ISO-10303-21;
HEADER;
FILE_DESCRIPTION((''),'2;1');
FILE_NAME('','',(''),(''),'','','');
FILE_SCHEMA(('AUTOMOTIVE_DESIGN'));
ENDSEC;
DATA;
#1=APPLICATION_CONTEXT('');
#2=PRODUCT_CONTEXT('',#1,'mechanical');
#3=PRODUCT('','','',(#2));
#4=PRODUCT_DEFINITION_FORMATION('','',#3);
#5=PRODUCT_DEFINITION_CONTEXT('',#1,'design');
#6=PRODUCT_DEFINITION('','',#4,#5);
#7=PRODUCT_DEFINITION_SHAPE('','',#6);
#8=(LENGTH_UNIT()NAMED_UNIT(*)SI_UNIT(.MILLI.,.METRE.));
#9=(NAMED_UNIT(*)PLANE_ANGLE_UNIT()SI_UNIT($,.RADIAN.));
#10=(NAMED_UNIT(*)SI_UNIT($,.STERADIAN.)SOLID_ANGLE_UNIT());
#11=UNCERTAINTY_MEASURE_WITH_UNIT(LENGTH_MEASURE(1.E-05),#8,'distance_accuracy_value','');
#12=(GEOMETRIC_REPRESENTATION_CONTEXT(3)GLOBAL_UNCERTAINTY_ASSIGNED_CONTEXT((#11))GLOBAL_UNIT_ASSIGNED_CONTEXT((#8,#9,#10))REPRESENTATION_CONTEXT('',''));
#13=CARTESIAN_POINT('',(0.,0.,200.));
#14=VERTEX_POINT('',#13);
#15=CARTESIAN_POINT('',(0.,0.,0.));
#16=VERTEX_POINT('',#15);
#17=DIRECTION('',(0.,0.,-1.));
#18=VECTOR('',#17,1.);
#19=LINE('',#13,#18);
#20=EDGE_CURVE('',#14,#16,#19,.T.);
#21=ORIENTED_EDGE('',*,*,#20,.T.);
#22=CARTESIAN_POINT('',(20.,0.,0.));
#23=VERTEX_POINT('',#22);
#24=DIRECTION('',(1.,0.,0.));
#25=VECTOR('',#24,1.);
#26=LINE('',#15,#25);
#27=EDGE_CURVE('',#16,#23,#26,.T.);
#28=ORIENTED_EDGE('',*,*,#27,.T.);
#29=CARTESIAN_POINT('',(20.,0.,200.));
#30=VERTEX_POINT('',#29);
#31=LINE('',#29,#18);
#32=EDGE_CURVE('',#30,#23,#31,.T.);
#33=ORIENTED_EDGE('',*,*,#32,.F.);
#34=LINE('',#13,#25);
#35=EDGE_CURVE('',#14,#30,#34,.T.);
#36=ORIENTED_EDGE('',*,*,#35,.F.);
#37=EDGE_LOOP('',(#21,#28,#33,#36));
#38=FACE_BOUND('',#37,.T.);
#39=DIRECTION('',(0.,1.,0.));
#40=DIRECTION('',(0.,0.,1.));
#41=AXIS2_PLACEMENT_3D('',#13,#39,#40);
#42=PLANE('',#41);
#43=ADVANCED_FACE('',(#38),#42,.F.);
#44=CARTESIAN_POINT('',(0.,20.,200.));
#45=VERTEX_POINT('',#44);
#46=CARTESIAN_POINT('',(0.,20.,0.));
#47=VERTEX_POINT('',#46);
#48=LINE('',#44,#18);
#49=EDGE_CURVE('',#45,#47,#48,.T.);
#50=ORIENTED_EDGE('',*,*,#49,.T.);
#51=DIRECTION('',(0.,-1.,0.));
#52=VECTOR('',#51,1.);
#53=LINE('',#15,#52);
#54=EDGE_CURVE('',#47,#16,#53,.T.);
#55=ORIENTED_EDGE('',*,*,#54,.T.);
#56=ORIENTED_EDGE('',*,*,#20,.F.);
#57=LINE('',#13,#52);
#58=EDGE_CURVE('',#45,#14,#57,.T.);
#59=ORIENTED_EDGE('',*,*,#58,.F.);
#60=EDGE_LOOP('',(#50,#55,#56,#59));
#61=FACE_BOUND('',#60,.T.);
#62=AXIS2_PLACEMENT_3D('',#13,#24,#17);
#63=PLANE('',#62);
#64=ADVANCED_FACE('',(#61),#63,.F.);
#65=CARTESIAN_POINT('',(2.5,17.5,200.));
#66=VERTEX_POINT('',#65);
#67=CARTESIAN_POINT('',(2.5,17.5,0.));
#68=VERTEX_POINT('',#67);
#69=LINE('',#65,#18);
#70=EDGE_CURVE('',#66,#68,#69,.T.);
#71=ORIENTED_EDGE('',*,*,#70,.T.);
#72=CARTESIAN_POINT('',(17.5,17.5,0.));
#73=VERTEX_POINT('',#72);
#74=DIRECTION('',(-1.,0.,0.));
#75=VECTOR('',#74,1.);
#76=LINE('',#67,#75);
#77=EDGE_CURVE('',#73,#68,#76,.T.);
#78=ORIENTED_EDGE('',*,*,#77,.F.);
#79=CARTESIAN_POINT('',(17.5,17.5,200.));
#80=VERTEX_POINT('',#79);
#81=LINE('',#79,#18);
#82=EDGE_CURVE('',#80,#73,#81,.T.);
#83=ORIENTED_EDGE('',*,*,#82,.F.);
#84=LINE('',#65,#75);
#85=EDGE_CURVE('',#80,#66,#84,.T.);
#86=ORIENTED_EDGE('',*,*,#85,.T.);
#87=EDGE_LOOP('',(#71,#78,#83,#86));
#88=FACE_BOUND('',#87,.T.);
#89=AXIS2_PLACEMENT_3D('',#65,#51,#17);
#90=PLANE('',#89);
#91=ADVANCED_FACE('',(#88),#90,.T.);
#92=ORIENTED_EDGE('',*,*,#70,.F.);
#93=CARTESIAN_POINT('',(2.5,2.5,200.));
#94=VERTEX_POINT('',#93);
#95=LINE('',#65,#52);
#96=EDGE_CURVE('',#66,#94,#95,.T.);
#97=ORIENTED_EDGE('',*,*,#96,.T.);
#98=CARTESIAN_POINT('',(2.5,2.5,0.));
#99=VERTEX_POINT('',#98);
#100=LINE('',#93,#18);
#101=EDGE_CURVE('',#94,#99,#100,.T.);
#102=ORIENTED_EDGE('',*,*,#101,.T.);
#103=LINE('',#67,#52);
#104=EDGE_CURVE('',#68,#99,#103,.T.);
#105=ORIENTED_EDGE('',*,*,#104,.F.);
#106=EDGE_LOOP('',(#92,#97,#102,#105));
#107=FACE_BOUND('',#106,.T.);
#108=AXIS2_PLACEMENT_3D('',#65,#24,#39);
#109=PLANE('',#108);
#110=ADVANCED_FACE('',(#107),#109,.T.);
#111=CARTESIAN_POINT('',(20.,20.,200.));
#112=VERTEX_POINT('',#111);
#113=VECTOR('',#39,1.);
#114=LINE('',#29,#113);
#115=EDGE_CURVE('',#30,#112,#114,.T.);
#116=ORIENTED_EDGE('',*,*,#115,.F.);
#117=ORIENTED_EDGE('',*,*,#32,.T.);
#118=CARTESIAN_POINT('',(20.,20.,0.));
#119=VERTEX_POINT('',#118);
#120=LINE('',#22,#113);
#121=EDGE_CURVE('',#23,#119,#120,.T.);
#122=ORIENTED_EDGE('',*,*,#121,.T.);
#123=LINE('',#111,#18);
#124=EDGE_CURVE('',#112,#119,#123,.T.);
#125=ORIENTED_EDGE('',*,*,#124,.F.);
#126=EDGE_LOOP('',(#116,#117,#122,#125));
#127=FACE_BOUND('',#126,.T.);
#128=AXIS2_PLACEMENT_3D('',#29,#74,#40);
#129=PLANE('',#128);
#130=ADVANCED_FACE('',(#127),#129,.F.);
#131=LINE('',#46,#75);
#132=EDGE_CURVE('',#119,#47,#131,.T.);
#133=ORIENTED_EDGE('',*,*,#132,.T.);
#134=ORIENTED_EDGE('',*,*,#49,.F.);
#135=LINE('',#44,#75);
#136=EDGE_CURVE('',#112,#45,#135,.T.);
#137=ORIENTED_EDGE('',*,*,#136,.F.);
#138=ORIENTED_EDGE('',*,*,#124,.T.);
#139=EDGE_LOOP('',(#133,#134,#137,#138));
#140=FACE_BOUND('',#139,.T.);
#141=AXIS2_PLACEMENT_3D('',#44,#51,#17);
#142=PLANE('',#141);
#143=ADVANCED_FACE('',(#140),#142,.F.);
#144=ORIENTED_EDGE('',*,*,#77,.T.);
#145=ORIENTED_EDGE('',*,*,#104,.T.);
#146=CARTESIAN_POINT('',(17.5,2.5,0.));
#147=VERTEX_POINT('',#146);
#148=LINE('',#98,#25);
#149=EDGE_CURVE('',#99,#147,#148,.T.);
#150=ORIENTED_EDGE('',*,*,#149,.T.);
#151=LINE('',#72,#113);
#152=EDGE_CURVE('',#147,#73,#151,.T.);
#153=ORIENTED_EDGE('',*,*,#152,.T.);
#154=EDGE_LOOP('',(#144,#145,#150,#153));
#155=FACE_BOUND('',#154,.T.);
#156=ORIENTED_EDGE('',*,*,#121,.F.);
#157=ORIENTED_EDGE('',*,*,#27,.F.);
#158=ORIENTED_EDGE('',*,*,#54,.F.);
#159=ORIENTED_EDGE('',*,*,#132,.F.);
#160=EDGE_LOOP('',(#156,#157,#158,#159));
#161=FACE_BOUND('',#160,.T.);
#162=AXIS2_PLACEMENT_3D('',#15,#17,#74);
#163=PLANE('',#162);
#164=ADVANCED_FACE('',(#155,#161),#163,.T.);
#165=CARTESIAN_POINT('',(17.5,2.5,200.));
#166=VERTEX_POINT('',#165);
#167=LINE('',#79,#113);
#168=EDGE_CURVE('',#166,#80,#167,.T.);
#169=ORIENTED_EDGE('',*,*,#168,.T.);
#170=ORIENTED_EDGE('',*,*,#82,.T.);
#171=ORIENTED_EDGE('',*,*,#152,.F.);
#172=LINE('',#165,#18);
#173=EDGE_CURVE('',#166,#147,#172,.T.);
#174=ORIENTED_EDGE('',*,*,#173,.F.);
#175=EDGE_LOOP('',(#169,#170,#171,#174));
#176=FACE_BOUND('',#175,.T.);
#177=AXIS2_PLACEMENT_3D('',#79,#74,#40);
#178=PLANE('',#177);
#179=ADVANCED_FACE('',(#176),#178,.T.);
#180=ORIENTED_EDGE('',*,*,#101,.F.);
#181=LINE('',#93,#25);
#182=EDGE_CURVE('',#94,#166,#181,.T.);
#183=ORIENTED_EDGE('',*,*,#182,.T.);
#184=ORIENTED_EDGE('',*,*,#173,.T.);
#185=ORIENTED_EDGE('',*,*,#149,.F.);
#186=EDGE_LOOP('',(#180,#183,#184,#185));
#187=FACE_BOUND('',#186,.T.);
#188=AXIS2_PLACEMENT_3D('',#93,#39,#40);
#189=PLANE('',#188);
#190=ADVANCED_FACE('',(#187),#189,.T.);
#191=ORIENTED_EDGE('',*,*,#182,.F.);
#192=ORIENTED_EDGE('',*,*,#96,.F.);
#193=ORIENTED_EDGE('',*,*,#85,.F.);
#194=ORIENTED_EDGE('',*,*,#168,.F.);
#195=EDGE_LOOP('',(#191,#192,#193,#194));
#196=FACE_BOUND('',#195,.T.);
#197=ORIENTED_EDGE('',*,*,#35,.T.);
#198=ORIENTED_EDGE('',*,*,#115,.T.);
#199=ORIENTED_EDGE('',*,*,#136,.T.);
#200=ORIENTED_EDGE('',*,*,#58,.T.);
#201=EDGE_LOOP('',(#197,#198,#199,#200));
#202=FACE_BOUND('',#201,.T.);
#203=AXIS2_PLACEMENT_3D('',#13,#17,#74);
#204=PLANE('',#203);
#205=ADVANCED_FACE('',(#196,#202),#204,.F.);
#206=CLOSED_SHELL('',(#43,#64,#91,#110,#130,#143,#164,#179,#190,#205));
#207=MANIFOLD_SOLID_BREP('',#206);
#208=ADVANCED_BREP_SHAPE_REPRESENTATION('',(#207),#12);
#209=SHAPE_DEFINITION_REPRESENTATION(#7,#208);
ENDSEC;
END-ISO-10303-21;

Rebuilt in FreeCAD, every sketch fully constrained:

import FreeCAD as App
import Part
import Sketcher
from FreeCAD import Vector
Q = App.Units.Quantity

doc = App.newDocument("Part")
body = doc.addObject("PartDesign::Body", "Body")

# Sketch on XY plane
sketch1 = body.newObject("Sketcher::SketchObject", "Sketch")
sketch1.AttachmentSupport = (doc.getObject("XY_Plane"), [""])
sketch1.MapMode = "FlatFace"
sketch1.addGeometry([
    Part.LineSegment(Vector(0, 20, 0), Vector(0, 0, 0)),  # 0
    Part.LineSegment(Vector(0, 0, 0), Vector(20, 0, 0)),  # 1
    Part.LineSegment(Vector(20, 0, 0), Vector(20, 20, 0)),  # 2
    Part.LineSegment(Vector(20, 20, 0), Vector(0, 20, 0)),  # 3
    Part.LineSegment(Vector(18, 2, 0), Vector(2, 2, 0)),  # 4
    Part.LineSegment(Vector(2, 2, 0), Vector(2, 18, 0)),  # 5
    Part.LineSegment(Vector(2, 18, 0), Vector(18, 18, 0)),  # 6
    Part.LineSegment(Vector(18, 18, 0), Vector(18, 2, 0)),  # 7
], False)
sketch1.addConstraint([
    Sketcher.Constraint("Coincident", 0, 2, 1, 1),
    Sketcher.Constraint("Coincident", 1, 2, 2, 1),
    Sketcher.Constraint("Coincident", 2, 2, 3, 1),
    Sketcher.Constraint("Coincident", 3, 2, 0, 1),
    Sketcher.Constraint("Coincident", 4, 2, 5, 1),
    Sketcher.Constraint("Coincident", 5, 2, 6, 1),
    Sketcher.Constraint("Coincident", 6, 2, 7, 1),
    Sketcher.Constraint("Coincident", 7, 2, 4, 1),
    Sketcher.Constraint("Vertical", 0),
    Sketcher.Constraint("Horizontal", 1),
    Sketcher.Constraint("Vertical", 2),
    Sketcher.Constraint("Horizontal", 3),
    Sketcher.Constraint("Horizontal", 4),
    Sketcher.Constraint("Vertical", 5),
    Sketcher.Constraint("Horizontal", 6),
    Sketcher.Constraint("Vertical", 7),
    Sketcher.Constraint("Coincident", 0, 2, -1, 1),
    Sketcher.Constraint("Equal", 3, 0),
    Sketcher.Constraint("Equal", 6, 5),
    Sketcher.Constraint("DistanceX", 1, 1, 1, 2, Q("20 mm")),
    Sketcher.Constraint("DistanceX", 4, 2, 4, 1, Q("15 mm")),
    Sketcher.Constraint("DistanceX", -1, 1, 4, 2, Q("2.5 mm")),
    Sketcher.Constraint("DistanceY", -1, 1, 4, 2, Q("2.5 mm")),
])
pad1 = body.newObject("PartDesign::Pad", "Pad")
pad1.Profile = sketch1
pad1.Length = 200

doc.recompute()
